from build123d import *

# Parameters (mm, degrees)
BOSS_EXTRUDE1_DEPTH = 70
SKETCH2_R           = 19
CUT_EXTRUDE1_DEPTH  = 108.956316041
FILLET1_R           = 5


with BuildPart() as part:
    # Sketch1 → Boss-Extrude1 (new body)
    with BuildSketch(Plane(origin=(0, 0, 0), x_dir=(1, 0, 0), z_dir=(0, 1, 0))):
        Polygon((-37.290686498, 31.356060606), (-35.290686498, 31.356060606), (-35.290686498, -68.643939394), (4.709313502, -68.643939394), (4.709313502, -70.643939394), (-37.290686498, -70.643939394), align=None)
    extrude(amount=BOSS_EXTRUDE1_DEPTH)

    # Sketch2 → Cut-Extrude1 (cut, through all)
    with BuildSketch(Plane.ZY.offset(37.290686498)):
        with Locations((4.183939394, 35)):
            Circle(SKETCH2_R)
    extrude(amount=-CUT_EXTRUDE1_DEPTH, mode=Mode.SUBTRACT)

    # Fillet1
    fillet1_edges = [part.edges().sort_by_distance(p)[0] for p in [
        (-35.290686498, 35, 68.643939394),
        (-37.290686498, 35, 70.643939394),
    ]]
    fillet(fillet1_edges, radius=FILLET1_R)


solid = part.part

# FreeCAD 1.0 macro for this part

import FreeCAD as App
import Part
import Sketcher


def edges_at(feature, points):
    """Names of the edges that pass closest to the given points."""
    edges = feature.Shape.Edges
    near = lambda p: min(range(len(edges)), key=lambda i: edges[i].distToShape(Part.Vertex(*p))[0])
    return sorted({f"Edge{near(p) + 1}" for p in points})


def add_polygon(sketch, points):
    """Adds a closed chain of lines whose ends are joined by coincident constraints."""
    first, n = sketch.GeometryCount, len(points)
    for a, b in zip(points, points[1:] + points[:1]):
        sketch.addGeometry(Part.LineSegment(App.Vector(*a, 0), App.Vector(*b, 0)), False)
    for i in range(n):
        sketch.addConstraint(Sketcher.Constraint("Coincident", first + i, 2, first + (i + 1) % n, 1))

doc = App.newDocument("Part")
body = doc.addObject("PartDesign::Body", "Body")

sketch1 = body.newObject("Sketcher::SketchObject", "Sketch")
sketch1.AttachmentSupport = (doc.getObject("XZ_Plane"), [""])
sketch1.MapMode = "FlatFace"
add_polygon(sketch1, [(-35.290686, -31.356061), (-37.290686, -31.356061), (-37.290686, 70.643939), (4.709314, 70.643939), (4.709314, 68.643939), (-35.290686, 68.643939)])
sketch1.addConstraint(Sketcher.Constraint("Horizontal", 0))
sketch1.addConstraint(Sketcher.Constraint("Vertical", 1))
sketch1.addConstraint(Sketcher.Constraint("Horizontal", 2))
sketch1.addConstraint(Sketcher.Constraint("Vertical", 3))
sketch1.addConstraint(Sketcher.Constraint("Horizontal", 4))
sketch1.addConstraint(Sketcher.Constraint("Vertical", 5))
sketch1.addConstraint(Sketcher.Constraint("Equal", 0, 3))
sketch1.addConstraint(Sketcher.Constraint("DistanceX", 0, 2, 0, 1, 2.0))
sketch1.addConstraint(Sketcher.Constraint("DistanceX", 2, 1, 2, 2, 42.0))
sketch1.addConstraint(Sketcher.Constraint("DistanceY", 1, 1, 1, 2, 102.0))
sketch1.addConstraint(Sketcher.Constraint("DistanceY", 0, 2, -1, 1, 31.356061))
sketch1.addConstraint(Sketcher.Constraint("DistanceX", 0, 2, -1, 1, 37.290686))
pad1 = body.newObject("PartDesign::Pad", "Pad")
pad1.Profile = sketch1
pad1.Length = 70
pad1.Reversed = True

sketch2 = body.newObject("Sketcher::SketchObject", "Sketch001")
sketch2.AttachmentSupport = (doc.getObject("YZ_Plane"), [""])
sketch2.MapMode = "FlatFace"
sketch2.AttachmentOffset = App.Placement(App.Vector(0, 0, -37.290686), App.Rotation())
sketch2.addGeometry(Part.Circle(App.Vector(35, 4.183939, 0), App.Vector(0, 0, 1), 19), False)
sketch2.addConstraint(Sketcher.Constraint("Diameter", 0, 38.0))
sketch2.addConstraint(Sketcher.Constraint("DistanceX", -1, 1, 0, 3, 35.0))
sketch2.addConstraint(Sketcher.Constraint("DistanceY", -1, 1, 0, 3, 4.183939))
pocket1 = body.newObject("PartDesign::Pocket", "Pocket")
pocket1.Profile = sketch2
pocket1.Type = "ThroughAll"
pocket1.Reversed = True
doc.recompute()

fillet = body.newObject("PartDesign::Fillet", "Fillet")
fillet.Base = (pocket1, edges_at(pocket1, [(-35.291, 35, 68.644), (-37.291, 35, 70.644)]))
fillet.Radius = 5

doc.recompute()
